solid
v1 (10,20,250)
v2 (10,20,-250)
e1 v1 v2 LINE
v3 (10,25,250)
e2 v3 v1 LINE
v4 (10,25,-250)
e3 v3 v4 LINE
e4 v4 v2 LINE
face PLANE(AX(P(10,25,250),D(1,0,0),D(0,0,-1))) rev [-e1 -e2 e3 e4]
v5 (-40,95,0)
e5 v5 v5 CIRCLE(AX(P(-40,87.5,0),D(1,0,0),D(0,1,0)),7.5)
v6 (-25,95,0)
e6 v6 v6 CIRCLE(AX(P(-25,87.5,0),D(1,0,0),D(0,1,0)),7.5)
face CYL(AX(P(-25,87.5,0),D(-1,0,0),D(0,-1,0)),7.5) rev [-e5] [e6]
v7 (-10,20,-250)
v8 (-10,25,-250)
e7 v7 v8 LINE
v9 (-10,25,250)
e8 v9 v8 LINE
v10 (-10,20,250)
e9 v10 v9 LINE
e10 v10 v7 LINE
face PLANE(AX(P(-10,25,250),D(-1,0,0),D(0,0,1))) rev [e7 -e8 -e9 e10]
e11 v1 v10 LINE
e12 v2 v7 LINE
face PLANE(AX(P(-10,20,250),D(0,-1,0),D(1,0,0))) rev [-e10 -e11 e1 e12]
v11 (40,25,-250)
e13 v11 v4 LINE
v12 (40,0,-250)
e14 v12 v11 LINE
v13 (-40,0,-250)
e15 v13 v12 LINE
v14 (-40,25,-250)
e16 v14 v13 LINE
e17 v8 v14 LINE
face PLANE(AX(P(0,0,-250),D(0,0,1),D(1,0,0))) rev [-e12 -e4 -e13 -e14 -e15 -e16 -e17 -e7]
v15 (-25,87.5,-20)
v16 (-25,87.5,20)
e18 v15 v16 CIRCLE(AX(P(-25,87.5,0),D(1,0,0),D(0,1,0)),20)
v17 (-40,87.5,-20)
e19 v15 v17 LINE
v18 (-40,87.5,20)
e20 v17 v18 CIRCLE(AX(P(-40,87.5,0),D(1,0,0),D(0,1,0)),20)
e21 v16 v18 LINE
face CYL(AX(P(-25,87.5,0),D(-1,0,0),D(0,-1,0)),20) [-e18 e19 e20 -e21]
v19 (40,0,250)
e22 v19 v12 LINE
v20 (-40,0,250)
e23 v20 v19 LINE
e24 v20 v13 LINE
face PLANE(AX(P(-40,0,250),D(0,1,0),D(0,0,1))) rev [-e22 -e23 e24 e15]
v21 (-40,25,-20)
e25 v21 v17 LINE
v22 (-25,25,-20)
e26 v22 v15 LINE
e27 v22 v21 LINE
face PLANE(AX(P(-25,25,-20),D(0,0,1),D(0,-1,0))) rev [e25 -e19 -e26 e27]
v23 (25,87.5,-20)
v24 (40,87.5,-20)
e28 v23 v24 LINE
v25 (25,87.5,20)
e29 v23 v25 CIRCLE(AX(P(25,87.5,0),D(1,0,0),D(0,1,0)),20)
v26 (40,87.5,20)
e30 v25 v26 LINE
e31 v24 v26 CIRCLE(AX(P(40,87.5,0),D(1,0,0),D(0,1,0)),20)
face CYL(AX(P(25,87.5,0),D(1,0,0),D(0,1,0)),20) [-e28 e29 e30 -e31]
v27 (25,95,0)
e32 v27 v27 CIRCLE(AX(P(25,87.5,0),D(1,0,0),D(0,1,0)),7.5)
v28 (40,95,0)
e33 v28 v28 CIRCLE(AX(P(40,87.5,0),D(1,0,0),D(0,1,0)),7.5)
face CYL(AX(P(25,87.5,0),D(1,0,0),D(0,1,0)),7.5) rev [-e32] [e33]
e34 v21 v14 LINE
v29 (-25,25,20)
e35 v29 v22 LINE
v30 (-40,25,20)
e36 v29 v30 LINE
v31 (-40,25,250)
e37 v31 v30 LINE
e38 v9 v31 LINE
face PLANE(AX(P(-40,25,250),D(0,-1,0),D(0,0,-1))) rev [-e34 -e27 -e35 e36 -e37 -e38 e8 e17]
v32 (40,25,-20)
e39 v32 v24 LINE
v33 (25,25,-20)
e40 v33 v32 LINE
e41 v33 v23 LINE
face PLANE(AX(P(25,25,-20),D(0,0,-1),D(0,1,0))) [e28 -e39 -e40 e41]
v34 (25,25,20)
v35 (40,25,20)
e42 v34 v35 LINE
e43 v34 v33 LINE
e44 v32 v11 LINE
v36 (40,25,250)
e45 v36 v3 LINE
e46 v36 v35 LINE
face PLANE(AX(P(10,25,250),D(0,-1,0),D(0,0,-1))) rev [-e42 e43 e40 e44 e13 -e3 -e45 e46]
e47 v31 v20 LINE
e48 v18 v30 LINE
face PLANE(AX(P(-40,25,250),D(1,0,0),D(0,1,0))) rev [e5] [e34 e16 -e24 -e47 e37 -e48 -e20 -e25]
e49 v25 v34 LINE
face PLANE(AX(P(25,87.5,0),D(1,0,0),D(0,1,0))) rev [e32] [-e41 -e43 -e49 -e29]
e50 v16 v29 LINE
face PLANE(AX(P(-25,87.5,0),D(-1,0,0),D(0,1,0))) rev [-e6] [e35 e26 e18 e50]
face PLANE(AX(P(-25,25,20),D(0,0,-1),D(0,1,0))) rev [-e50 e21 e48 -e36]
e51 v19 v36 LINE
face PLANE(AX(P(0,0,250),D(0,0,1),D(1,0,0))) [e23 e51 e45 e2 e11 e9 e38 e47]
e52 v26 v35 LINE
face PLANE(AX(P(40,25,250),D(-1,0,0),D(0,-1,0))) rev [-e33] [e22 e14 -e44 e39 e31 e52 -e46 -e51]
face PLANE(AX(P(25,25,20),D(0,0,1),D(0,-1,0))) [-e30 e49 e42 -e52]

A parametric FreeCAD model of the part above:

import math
import FreeCAD as App
import Part
import Sketcher
from FreeCAD import Vector
Q = App.Units.Quantity


def add_polygon(sketch, points):
    """Adds a closed chain of lines whose ends are joined by coincident constraints."""
    first, n = sketch.GeometryCount, len(points)
    for a, b in zip(points, points[1:] + points[:1]):
        sketch.addGeometry(Part.LineSegment(App.Vector(*a, 0), App.Vector(*b, 0)), False)
    for i in range(n):
        sketch.addConstraint(Sketcher.Constraint("Coincident", first + i, 2, first + (i + 1) % n, 1))

doc = App.newDocument("Part")
body = doc.addObject("PartDesign::Body", "Body")

sketch1 = doc.addObject("Sketcher::SketchObject", "Sketch")
body.addObject(sketch1)
sketch1.AttachmentSupport = (doc.XY_Plane, [""])
sketch1.MapMode = "FlatFace"
add_polygon(sketch1, [(40, 25), (10, 25), (10, 20), (-10, 20), (-10, 25), (-40, 25), (-40, 0), (40, 0)])
sketch1.addConstraint([
    Sketcher.Constraint("Horizontal", 0),
    Sketcher.Constraint("Vertical", 1),
    Sketcher.Constraint("Horizontal", 2),
    Sketcher.Constraint("Vertical", 3),
    Sketcher.Constraint("Horizontal", 4),
    Sketcher.Constraint("Vertical", 5),
    Sketcher.Constraint("Horizontal", 6),
    Sketcher.Constraint("Vertical", 7),
    Sketcher.Constraint("Symmetric", 5, 2, 6, 2, -1, 1),
    Sketcher.Constraint("Symmetric", 0, 2, 3, 2, -2),
    Sketcher.Constraint("DistanceX", 0, 2, 0, 1, Q("30 mm")),
    Sketcher.Constraint("DistanceX", 2, 2, 2, 1, Q("20 mm")),
    Sketcher.Constraint("DistanceY", 1, 2, 1, 1, Q("5 mm")),
    Sketcher.Constraint("DistanceY", 5, 2, 5, 1, Q("25 mm")),
])
pad1 = doc.addObject("PartDesign::Pad", "Pad")
body.addObject(pad1)
pad1.Profile = sketch1
pad1.Length = 500
pad1.Midplane = True

sketch2 = doc.addObject("Sketcher::SketchObject", "Sketch001")
body.addObject(sketch2)
sketch2.AttachmentSupport = (doc.YZ_Plane, [""])
sketch2.MapMode = "FlatFace"
sketch2.AttachmentOffset = App.Placement(Vector(0, 0, 40), App.Rotation())
sketch2.addGeometry([
    Part.LineSegment(Vector(25, 20, 0), Vector(25, -20, 0)),
    Part.LineSegment(Vector(25, -20, 0), Vector(87.5, -20, 0)),
    Part.ArcOfCircle(Part.Circle(Vector(87.5, 0, 0), Vector(0, 0, 1), 20), math.radians(-90), math.radians(90)),
    Part.LineSegment(Vector(87.5, 20, 0), Vector(25, 20, 0)),
    Part.Circle(Vector(87.5, 0, 0), Vector(0, 0, 1), 7.5),
], False)
sketch2.addConstraint([
    Sketcher.Constraint("Coincident", 0, 2, 1, 1),
    Sketcher.Constraint("Tangent", 1, 2, 2, 1),
    Sketcher.Constraint("Tangent", 2, 2, 3, 1),
    Sketcher.Constraint("Coincident", 3, 2, 0, 1),
    Sketcher.Constraint("Vertical", 0),
    Sketcher.Constraint("Horizontal", 1),
    Sketcher.Constraint("Horizontal", 3),
    Sketcher.Constraint("Coincident", 4, 3, 2, 3),
    Sketcher.Constraint("PointOnObject", 2, 3, -1),
    Sketcher.Constraint("Diameter", 4, Q("15 mm")),
    Sketcher.Constraint("Radius", 2, Q("20 mm")),
    Sketcher.Constraint("DistanceX", 1, 1, 1, 2, Q("62.5 mm")),
    Sketcher.Constraint("DistanceX", -1, 1, 0, 2, Q("25 mm")),
])
pad2 = doc.addObject("PartDesign::Pad", "Pad001")
body.addObject(pad2)
pad2.Profile = sketch2
pad2.Length = 15
pad2.Reversed = True
doc.recompute()

mirrored = doc.addObject("PartDesign::Mirrored", "Mirrored")
body.addObject(mirrored)
mirrored.Originals = [pad2]
mirrored.MirrorPlane = (doc.YZ_Plane, [""])
body.Tip = mirrored

doc.recompute()
